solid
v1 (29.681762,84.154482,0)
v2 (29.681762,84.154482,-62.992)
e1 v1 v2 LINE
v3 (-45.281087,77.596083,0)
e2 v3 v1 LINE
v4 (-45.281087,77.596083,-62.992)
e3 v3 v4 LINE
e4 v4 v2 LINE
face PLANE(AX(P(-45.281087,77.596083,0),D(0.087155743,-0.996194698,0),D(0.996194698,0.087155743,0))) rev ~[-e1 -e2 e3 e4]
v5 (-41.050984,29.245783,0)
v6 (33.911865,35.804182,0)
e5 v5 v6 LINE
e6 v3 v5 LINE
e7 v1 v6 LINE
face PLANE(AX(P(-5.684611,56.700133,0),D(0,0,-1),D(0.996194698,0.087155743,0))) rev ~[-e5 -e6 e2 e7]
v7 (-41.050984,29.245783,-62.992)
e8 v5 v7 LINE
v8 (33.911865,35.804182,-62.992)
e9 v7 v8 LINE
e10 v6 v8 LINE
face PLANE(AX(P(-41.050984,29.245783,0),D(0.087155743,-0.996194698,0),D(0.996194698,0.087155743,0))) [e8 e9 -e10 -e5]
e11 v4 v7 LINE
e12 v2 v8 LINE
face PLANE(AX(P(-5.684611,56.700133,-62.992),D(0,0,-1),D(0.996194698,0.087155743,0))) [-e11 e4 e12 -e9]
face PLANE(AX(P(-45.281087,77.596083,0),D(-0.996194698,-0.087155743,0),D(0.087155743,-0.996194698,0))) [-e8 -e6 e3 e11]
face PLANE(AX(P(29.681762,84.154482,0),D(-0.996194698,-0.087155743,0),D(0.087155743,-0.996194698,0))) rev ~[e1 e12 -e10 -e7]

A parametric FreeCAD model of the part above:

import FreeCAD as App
import Part
import Sketcher
from FreeCAD import Vector
Q = App.Units.Quantity

doc = App.newDocument("Part")
body = doc.addObject("PartDesign::Body", "Body")

# Sketch on XY plane
sketch1 = body.newObject("Sketcher::SketchObject", "Sketch")
sketch1.AttachmentSupport = (doc.getObject("XY_Plane"), [""])
sketch1.MapMode = "FlatFace"
sketch1.addGeometry([
    Part.LineSegment(Vector(-41, 36, 0), Vector(-41, -13, 0)),
    Part.LineSegment(Vector(-41, -13, 0), Vector(34, -13, 0)),
    Part.LineSegment(Vector(34, -13, 0), Vector(34, 36, 0)),
    Part.LineSegment(Vector(34, 36, 0), Vector(-41, 36, 0)),
], False)
sketch1.addConstraint([
    Sketcher.Constraint("Coincident", 0, 2, 1, 1),
    Sketcher.Constraint("Coincident", 1, 2, 2, 1),
    Sketcher.Constraint("Coincident", 2, 2, 3, 1),
    Sketcher.Constraint("Coincident", 3, 2, 0, 1),
    Sketcher.Constraint("Vertical", 0),
    Sketcher.Constraint("Horizontal", 1),
    Sketcher.Constraint("Vertical", 2),
    Sketcher.Constraint("Horizontal", 3),
    Sketcher.Constraint("DistanceY", 0, 2, 0, 1, 48.53499),
    Sketcher.Constraint("DistanceX", 1, 1, 1, 2, 75.249195),
    Sketcher.Constraint("DistanceX", 0, 2, -1, 1, 41.33733),
    Sketcher.Constraint("DistanceY", 0, 2, -1, 1, 12.730808),
])
pad1 = body.newObject("PartDesign::Pad", "Pad")
pad1.Profile = sketch1
pad1.Length = Q("2.48 in")
body2 = doc.addObject("PartDesign::Body", "Body001")
doc.recompute()

body.Placement = App.Placement(Vector(64.574145, 74.427733, 0), App.Rotation(Vector(0, 0, -1), 175))
boolean = body2.newObject("PartDesign::Boolean", "Boolean")
boolean.Type = "Fuse"
boolean.addObjects([body])
body3 = doc.addObject("PartDesign::Body", "Body002")
doc.recompute()

body2.Placement = App.Placement(Vector(73.525864, 6.43268, 0), App.Rotation(Vector(0.087155743, -0.996194698, 0), 180))
boolean2 = body3.newObject("PartDesign::Boolean", "Boolean001")
boolean2.Type = "Fuse"
boolean2.addObjects([body2])

doc.recompute()
